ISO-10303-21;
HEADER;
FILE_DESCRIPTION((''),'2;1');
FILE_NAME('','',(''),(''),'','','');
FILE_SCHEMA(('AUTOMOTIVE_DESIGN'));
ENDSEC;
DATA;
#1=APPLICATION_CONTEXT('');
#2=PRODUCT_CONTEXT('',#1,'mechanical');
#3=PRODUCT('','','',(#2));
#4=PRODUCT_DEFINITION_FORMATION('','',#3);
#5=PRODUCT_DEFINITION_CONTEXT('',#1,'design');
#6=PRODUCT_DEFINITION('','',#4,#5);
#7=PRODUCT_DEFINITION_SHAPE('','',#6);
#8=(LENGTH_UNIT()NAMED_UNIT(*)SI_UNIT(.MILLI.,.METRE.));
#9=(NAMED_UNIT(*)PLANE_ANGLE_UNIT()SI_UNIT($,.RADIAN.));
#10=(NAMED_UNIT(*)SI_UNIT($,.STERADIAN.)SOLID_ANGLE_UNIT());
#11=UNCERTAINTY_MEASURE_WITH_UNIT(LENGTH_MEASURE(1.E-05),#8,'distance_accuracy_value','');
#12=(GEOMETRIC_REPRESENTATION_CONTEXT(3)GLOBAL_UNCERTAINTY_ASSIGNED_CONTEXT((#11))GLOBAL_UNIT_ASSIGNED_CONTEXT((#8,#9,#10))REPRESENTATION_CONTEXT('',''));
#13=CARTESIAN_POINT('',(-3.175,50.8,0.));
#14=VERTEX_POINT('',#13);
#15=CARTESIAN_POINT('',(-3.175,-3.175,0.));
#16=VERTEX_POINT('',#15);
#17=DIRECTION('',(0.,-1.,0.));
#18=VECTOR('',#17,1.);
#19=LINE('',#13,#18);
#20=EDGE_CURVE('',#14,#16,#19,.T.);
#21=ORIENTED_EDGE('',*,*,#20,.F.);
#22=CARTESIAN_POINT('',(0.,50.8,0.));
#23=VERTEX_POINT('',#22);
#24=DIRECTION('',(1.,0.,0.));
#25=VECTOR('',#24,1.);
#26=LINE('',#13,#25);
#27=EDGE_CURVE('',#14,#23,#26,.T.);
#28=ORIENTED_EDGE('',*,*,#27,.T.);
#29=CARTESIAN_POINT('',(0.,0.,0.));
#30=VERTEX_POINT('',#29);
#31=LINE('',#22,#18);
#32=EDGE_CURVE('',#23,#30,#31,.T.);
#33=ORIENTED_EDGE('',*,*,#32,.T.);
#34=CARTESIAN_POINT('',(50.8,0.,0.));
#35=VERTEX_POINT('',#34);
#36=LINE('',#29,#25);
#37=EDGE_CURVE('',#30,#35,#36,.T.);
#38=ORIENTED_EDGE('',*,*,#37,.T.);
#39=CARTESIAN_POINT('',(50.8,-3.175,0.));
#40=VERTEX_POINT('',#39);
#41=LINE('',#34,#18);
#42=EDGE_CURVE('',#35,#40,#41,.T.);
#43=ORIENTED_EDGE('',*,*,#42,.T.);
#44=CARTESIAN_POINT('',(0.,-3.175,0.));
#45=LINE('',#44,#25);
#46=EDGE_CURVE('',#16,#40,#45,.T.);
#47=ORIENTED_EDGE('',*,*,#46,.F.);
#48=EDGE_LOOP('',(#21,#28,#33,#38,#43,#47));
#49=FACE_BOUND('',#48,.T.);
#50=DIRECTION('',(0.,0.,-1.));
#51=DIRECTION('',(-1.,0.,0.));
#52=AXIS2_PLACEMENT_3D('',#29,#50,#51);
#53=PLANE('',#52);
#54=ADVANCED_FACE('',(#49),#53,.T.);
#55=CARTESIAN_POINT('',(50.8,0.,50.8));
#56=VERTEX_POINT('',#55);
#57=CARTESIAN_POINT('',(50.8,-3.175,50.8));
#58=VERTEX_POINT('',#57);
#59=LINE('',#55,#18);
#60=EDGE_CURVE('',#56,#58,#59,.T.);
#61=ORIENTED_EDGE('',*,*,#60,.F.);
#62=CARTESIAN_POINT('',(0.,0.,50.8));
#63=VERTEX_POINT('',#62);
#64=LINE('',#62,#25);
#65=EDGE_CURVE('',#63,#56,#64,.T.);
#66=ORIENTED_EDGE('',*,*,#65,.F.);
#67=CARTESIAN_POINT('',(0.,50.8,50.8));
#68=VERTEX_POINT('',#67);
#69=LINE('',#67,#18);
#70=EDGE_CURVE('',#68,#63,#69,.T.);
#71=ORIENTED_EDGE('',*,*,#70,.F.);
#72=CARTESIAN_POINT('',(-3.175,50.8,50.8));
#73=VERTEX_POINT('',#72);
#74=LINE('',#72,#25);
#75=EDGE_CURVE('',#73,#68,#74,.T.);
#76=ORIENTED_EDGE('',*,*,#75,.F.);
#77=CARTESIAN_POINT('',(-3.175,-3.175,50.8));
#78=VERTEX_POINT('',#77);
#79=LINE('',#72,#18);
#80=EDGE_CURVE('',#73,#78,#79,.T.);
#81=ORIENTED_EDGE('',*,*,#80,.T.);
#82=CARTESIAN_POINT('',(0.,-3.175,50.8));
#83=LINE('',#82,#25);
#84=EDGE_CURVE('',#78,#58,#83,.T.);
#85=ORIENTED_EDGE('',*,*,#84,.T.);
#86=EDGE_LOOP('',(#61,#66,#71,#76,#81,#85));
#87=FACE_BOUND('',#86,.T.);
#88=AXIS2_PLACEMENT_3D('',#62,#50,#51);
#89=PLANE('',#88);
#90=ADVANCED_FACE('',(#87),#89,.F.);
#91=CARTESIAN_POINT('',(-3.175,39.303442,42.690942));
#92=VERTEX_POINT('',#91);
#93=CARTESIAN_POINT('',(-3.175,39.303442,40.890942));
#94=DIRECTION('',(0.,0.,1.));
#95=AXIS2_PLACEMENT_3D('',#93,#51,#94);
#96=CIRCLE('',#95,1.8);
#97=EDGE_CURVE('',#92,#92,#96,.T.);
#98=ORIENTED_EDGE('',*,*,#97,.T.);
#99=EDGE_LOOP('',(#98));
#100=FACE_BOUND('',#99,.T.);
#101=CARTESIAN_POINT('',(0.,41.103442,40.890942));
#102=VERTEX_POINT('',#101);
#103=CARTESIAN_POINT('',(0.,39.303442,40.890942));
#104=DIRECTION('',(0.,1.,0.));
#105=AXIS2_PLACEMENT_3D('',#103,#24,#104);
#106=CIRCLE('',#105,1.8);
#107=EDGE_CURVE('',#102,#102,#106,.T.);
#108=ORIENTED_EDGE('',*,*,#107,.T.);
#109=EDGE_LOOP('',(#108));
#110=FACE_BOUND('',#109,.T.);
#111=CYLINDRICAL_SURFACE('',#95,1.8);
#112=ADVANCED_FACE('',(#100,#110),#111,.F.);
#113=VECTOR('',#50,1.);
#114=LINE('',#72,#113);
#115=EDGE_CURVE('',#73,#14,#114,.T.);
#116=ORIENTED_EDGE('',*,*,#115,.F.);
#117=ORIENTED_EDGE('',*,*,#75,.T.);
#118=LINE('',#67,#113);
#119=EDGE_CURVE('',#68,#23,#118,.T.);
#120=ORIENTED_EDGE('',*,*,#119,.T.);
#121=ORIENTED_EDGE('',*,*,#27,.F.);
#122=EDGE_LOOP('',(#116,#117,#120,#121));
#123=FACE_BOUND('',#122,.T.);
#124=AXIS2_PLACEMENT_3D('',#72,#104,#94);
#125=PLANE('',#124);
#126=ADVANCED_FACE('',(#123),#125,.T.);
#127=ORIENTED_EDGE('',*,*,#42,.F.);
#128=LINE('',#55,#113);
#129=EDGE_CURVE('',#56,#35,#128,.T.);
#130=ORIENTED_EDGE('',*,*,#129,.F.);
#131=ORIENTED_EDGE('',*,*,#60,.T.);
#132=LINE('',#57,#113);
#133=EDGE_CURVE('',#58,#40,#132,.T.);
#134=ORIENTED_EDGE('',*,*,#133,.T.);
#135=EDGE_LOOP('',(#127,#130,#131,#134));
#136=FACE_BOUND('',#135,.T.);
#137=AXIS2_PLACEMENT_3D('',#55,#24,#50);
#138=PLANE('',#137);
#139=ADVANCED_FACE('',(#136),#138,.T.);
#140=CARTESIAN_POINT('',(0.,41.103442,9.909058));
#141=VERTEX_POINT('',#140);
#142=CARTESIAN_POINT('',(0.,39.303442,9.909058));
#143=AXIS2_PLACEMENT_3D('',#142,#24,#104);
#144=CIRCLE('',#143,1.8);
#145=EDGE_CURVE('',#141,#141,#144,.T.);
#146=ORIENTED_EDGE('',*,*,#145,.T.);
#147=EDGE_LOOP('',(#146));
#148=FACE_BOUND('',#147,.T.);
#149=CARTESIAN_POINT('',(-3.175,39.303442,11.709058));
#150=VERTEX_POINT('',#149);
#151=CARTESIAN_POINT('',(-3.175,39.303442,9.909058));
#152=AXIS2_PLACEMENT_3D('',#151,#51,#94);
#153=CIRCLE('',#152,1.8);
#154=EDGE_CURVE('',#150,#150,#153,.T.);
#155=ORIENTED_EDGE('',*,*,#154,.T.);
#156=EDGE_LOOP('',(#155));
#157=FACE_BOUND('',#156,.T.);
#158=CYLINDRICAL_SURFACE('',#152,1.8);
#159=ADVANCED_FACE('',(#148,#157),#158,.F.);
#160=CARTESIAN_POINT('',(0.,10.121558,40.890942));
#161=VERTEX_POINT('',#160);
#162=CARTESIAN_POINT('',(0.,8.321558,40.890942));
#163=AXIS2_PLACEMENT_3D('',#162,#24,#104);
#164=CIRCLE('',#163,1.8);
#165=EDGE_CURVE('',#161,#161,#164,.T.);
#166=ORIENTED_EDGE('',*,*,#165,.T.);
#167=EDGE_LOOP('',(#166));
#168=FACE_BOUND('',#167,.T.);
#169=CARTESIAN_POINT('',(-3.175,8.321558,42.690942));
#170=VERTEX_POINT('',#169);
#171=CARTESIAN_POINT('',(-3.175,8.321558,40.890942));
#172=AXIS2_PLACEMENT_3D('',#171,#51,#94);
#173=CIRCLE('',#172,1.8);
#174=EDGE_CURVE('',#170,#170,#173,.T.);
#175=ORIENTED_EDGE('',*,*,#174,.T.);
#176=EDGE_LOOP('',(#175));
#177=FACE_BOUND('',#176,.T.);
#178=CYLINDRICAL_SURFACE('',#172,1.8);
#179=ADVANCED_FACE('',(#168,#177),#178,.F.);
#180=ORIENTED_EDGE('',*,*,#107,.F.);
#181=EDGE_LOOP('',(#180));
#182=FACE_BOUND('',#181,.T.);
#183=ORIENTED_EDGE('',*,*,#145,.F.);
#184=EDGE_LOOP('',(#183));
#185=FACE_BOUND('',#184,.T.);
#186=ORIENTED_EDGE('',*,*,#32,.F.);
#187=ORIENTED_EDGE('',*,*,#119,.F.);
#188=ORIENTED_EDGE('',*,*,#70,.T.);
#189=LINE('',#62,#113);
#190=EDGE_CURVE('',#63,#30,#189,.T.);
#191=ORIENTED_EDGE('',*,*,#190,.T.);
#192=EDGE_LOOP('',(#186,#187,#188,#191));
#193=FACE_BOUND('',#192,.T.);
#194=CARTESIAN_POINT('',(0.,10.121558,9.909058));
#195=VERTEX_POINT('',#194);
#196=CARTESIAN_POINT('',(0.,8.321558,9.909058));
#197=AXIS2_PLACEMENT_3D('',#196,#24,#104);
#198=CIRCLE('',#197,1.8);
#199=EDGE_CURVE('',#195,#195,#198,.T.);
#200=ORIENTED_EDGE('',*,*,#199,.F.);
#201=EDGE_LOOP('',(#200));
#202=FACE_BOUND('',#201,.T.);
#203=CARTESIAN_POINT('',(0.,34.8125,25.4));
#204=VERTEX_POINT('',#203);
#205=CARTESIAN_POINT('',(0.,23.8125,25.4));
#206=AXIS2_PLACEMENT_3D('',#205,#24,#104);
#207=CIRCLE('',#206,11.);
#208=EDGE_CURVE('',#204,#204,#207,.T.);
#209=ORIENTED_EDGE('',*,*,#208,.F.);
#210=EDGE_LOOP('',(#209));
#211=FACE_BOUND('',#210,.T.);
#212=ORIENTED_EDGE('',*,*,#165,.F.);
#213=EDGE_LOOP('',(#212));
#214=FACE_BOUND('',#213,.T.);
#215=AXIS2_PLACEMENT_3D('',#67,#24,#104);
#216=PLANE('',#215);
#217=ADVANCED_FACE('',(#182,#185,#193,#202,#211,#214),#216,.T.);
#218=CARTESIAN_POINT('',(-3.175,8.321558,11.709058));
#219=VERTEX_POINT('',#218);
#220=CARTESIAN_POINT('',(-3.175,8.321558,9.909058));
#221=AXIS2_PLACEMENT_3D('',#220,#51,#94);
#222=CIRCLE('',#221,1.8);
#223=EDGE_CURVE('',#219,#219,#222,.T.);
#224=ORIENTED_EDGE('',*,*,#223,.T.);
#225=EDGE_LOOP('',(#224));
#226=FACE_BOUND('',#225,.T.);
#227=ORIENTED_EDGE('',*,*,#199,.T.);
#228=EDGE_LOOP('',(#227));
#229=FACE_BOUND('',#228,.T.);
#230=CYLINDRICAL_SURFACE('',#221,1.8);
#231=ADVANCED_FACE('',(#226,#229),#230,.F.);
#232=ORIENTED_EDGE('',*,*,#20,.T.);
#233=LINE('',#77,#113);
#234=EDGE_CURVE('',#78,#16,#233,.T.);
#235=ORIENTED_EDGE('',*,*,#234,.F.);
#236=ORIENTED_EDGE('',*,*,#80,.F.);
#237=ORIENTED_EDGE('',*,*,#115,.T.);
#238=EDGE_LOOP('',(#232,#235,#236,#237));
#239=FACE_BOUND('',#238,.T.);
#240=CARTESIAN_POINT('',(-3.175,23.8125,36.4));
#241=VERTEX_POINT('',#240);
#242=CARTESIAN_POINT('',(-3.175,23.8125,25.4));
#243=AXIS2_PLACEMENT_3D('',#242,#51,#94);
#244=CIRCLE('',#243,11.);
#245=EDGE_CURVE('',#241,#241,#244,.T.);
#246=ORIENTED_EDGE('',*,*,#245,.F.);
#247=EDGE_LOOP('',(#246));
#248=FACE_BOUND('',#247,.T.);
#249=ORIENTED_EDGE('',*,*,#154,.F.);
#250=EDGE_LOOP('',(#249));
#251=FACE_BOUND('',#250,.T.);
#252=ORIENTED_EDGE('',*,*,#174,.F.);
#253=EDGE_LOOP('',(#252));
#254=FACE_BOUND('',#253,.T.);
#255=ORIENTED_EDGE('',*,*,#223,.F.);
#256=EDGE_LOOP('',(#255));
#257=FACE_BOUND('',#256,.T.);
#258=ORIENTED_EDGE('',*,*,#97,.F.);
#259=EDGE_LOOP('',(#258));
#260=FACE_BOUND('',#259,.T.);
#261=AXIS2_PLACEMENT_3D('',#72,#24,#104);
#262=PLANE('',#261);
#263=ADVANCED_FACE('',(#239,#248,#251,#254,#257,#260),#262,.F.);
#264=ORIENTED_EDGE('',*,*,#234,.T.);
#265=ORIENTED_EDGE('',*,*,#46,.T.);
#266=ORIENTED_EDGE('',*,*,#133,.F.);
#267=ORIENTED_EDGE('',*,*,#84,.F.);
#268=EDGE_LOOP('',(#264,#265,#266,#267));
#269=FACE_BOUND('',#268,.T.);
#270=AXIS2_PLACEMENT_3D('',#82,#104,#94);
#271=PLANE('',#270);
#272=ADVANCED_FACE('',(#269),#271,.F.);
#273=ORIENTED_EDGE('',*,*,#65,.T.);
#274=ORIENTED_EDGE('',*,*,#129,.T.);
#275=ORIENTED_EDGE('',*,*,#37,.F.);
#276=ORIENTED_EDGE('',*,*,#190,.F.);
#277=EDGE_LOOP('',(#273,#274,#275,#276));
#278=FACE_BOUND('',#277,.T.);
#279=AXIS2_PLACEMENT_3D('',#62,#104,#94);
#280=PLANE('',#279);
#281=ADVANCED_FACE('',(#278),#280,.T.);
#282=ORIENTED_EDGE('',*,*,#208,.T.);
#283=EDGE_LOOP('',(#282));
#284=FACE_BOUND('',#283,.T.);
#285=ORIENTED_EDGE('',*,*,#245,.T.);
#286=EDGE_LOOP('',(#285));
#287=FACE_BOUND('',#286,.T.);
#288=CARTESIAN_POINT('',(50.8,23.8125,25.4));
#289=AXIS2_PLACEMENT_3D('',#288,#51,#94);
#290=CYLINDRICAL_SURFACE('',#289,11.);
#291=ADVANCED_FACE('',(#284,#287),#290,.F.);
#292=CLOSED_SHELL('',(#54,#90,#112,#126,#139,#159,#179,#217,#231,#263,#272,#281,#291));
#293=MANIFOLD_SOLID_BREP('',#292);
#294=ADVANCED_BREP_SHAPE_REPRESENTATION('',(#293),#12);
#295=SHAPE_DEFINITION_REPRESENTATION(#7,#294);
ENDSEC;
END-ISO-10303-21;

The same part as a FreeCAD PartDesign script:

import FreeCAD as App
import Part
import Sketcher

V = App.Vector
Q = App.Units.Quantity

doc = App.newDocument("Part")
params = doc.addObject("Spreadsheet::Sheet", "Params")
for row, (alias, value) in enumerate([
    ("sketch1_width", "2 in"),
    ("sketch1_width2", "0.125 in"),
    ("pad1_length", "2 in"),
    ("hole_diameter", "3.6 mm"),
], start=1):
    params.set(f"A{row}", alias)
    params.set(f"B{row}", "=" + value)
    params.setAlias(f"B{row}", alias)

body = doc.addObject("PartDesign::Body", "Body")

# Sketch on XY plane
sketch1 = body.newObject("Sketcher::SketchObject", "Sketch")
sketch1.AttachmentSupport = (doc.getObject("XY_Plane"), [""])
sketch1.MapMode = "FlatFace"
sketch1.addGeometry(Part.LineSegment(V(0, 0, 0), V(0, 50.8, 0)), False)
sketch1.addGeometry(Part.LineSegment(V(0, 50.8, 0), V(-3.2, 50.8, 0)), False)
sketch1.addGeometry(Part.LineSegment(V(-3.2, 50.8, 0), V(-3.2, -3.2, 0)), False)
sketch1.addGeometry(Part.LineSegment(V(-3.2, -3.2, 0), V(50.8, -3.2, 0)), False)
sketch1.addGeometry(Part.LineSegment(V(50.8, -3.2, 0), V(50.8, 0, 0)), False)
sketch1.addGeometry(Part.LineSegment(V(50.8, 0, 0), V(0, 0, 0)), False)
sketch1.addConstraint(Sketcher.Constraint("Coincident", 0, 2, 1, 1))
sketch1.addConstraint(Sketcher.Constraint("Coincident", 1, 2, 2, 1))
sketch1.addConstraint(Sketcher.Constraint("Coincident", 2, 2, 3, 1))
sketch1.addConstraint(Sketcher.Constraint("Coincident", 3, 2, 4, 1))
sketch1.addConstraint(Sketcher.Constraint("Coincident", 4, 2, 5, 1))
sketch1.addConstraint(Sketcher.Constraint("Coincident", 5, 2, 0, 1))
sketch1.addConstraint(Sketcher.Constraint("Vertical", 0))
sketch1.addConstraint(Sketcher.Constraint("Horizontal", 1))
sketch1.addConstraint(Sketcher.Constraint("Vertical", 2))
sketch1.addConstraint(Sketcher.Constraint("Horizontal", 3))
sketch1.addConstraint(Sketcher.Constraint("Vertical", 4))
sketch1.addConstraint(Sketcher.Constraint("Horizontal", 5))
sketch1.addConstraint(Sketcher.Constraint("Coincident", 5, 2, -1, 1))
sketch1.addConstraint(Sketcher.Constraint("Equal", 5, 0))
sketch1.addConstraint(Sketcher.Constraint("Equal", 3, 2))
sketch1.addConstraint(Sketcher.Constraint("DistanceX", 5, 2, 5, 1, Q("2 in")))
sketch1.addConstraint(Sketcher.Constraint("DistanceX", 1, 2, 1, 1, Q("0.125 in")))
sketch1.setExpression("Constraints[15]", "Params.sketch1_width")
sketch1.setExpression("Constraints[16]", "Params.sketch1_width2")
pad1 = body.newObject("PartDesign::Pad", "Pad")
pad1.Profile = sketch1
pad1.setExpression("Length", "Params.pad1_length")

# Sketch on YZ plane
sketch2 = body.newObject("Sketcher::SketchObject", "Sketch001")
sketch2.AttachmentSupport = (doc.getObject("YZ_Plane"), [""])
sketch2.MapMode = "FlatFace"
sketch2.AttachmentOffset = App.Placement(V(0, 0, -0.125 * 25.4), App.Rotation())
sketch2.addGeometry(Part.Circle(V(24, 25, 0), V(0, 0, 1), 11), False)
sketch2.addConstraint(Sketcher.Constraint("DistanceY", -1, 1, 0, 3, Q("1 in")))
sketch2.addConstraint(Sketcher.Constraint("Diameter", 0, 22.0))
sketch2.addConstraint(Sketcher.Constraint("DistanceX", -1, 1, 0, 3, Q("0.9375 in")))
pocket1 = body.newObject("PartDesign::Pocket", "Pocket")
pocket1.Profile = sketch2
pocket1.Type = "ThroughAll"
pocket1.Reversed = True

# Sketch on YZ plane
sketch3 = body.newObject("Sketcher::SketchObject", "Sketch002")
sketch3.AttachmentSupport = (doc.getObject("YZ_Plane"), [""])
sketch3.MapMode = "FlatFace"
sketch3.AttachmentOffset = App.Placement(V(0, 0, -0.125 * 25.4), App.Rotation())
sketch3.addGeometry(Part.Circle(V(39.3, 9.9, 0), V(0, 0, 1), 1.8), False)
sketch3.addGeometry(Part.Circle(V(39.3, 40.9, 0), V(0, 0, 1), 1.8), False)
sketch3.addGeometry(Part.Circle(V(8.3, 40.9, 0), V(0, 0, 1), 1.8), False)
sketch3.addGeometry(Part.Circle(V(8.3, 9.9, 0), V(0, 0, 1), 1.8), False)
sketch3.addConstraint(Sketcher.Constraint("Equal", 0, 1))
sketch3.addConstraint(Sketcher.Constraint("Equal", 1, 2))
sketch3.addConstraint(Sketcher.Constraint("Equal", 2, 3))
sketch3.addConstraint(Sketcher.Constraint("Horizontal", 1, 3, 2, 3))
sketch3.addConstraint(Sketcher.Constraint("Horizontal", 0, 3, 3, 3))
sketch3.addConstraint(Sketcher.Constraint("Vertical", 0, 3, 1, 3))
sketch3.addConstraint(Sketcher.Constraint("Vertical", 2, 3, 3, 3))
sketch3.addConstraint(Sketcher.Constraint("Diameter", 0, 3.6))
sketch3.addConstraint(Sketcher.Constraint("DistanceX", -1, 1, 0, 3, 39.303442))
sketch3.addConstraint(Sketcher.Constraint("DistanceY", -1, 1, 0, 3, 9.909058))
sketch3.addConstraint(Sketcher.Constraint("DistanceY", -1, 1, 1, 3, 40.890942))
sketch3.addConstraint(Sketcher.Constraint("DistanceX", -1, 1, 2, 3, 8.321558))
doc.recompute()
hole = body.newObject("PartDesign::Hole", "Hole")
hole.Profile = sketch3
hole.ThreadType = "None"
hole.setExpression("Diameter", "Params.hole_diameter")
hole.DepthType = "ThroughAll"
hole.Reversed = True

doc.recompute()
